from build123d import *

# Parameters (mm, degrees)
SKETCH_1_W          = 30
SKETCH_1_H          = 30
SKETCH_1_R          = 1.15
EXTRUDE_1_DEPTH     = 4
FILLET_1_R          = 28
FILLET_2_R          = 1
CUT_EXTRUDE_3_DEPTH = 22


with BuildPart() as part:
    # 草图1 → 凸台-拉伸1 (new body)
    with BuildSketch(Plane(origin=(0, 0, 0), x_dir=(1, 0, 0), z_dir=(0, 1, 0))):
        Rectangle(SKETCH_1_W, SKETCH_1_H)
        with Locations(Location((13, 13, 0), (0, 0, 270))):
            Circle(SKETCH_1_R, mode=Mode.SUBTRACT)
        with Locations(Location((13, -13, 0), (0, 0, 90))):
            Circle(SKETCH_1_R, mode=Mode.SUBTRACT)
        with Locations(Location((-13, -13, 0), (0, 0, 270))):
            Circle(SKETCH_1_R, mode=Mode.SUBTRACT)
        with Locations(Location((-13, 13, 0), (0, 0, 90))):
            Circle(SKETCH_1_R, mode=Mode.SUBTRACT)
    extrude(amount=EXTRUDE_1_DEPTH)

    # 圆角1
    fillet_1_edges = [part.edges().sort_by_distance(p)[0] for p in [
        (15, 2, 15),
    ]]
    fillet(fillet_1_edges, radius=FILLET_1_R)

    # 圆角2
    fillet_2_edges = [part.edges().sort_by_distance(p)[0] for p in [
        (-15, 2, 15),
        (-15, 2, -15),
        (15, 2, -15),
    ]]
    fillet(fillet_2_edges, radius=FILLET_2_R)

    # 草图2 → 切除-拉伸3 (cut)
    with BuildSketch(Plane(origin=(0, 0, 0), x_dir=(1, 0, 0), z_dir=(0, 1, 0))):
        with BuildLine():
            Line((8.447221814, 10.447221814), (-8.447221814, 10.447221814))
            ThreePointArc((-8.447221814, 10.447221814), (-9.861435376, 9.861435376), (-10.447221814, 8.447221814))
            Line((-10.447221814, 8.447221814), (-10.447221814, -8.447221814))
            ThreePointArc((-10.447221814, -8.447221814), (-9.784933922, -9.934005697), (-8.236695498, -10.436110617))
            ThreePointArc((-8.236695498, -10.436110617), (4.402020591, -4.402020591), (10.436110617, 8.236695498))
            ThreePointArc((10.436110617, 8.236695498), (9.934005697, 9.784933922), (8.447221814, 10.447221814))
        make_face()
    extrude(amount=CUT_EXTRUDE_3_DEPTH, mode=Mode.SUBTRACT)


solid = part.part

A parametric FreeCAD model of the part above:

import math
import FreeCAD as App
import Part
import Sketcher

V = App.Vector


def edges_at(feature, points):
    """Names of the edges that pass closest to the given points."""
    edges = feature.Shape.Edges
    near = lambda p: min(range(len(edges)), key=lambda i: edges[i].distToShape(Part.Vertex(*p))[0])
    return sorted({f"Edge{near(p) + 1}" for p in points})


def add_polygon(sketch, points):
    """Adds a closed chain of lines whose ends are joined by coincident constraints."""
    first, n = sketch.GeometryCount, len(points)
    for a, b in zip(points, points[1:] + points[:1]):
        sketch.addGeometry(Part.LineSegment(App.Vector(*a, 0), App.Vector(*b, 0)), False)
    for i in range(n):
        sketch.addConstraint(Sketcher.Constraint("Coincident", first + i, 2, first + (i + 1) % n, 1))

doc = App.newDocument("Part")
body = doc.addObject("PartDesign::Body", "Body")

sketch1 = doc.addObject("Sketcher::SketchObject", "Sketch")
body.addObject(sketch1)
sketch1.AttachmentSupport = (doc.XZ_Plane, [""])
sketch1.MapMode = "FlatFace"
add_polygon(sketch1, [(-15, -15), (-15, 15), (15, 15), (15, -15)])
sketch1.addGeometry(Part.Circle(V(-13, 13, 0), V(0, 0, 1), 1.1), False)
sketch1.addGeometry(Part.Circle(V(13, 13, 0), V(0, 0, 1), 1.1), False)
sketch1.addGeometry(Part.Circle(V(-13, -13, 0), V(0, 0, 1), 1.1), False)
sketch1.addGeometry(Part.Circle(V(13, -13, 0), V(0, 0, 1), 1.1), False)
sketch1.addConstraint([
    Sketcher.Constraint("Vertical", 0),
    Sketcher.Constraint("Horizontal", 1),
    Sketcher.Constraint("Vertical", 2),
    Sketcher.Constraint("Horizontal", 3),
    Sketcher.Constraint("Equal", 4, 5),
    Sketcher.Constraint("Equal", 5, 6),
    Sketcher.Constraint("Equal", 6, 7),
    Sketcher.Constraint("Symmetric", 5, 3, 6, 3, -1, 1),
    Sketcher.Constraint("Symmetric", 4, 3, 7, 3, -1, 1),
    Sketcher.Constraint("Symmetric", 0, 2, 2, 2, -1, 1),
    Sketcher.Constraint("Symmetric", 4, 3, 5, 3, -2),
    Sketcher.Constraint("Equal", 3, 0),
    Sketcher.Constraint("Diameter", 4, 2.3),
    Sketcher.Constraint("DistanceX", 1, 1, 1, 2, 30.0),
    Sketcher.Constraint("DistanceX", 4, 3, -1, 1, 13.0),
    Sketcher.Constraint("DistanceY", -1, 1, 4, 3, 13.0),
])
pad1 = doc.addObject("PartDesign::Pad", "Pad")
body.addObject(pad1)
pad1.Profile = sketch1
pad1.Length = 4
pad1.Reversed = True
doc.recompute()

fillet = doc.addObject("PartDesign::Fillet", "Fillet")
body.addObject(fillet)
fillet.Base = (pad1, edges_at(pad1, [(15, 2, 15)]))
fillet.Radius = 28
doc.recompute()

fillet2 = doc.addObject("PartDesign::Fillet", "Fillet001")
body.addObject(fillet2)
fillet2.Base = (fillet, edges_at(fillet, [(-15, 2, 15), (-15, 2, -15), (15, 2, -15)]))
fillet2.Radius = 1

sketch2 = doc.addObject("Sketcher::SketchObject", "Sketch001")
body.addObject(sketch2)
sketch2.AttachmentSupport = (doc.XZ_Plane, [""])
sketch2.MapMode = "FlatFace"
sketch2.addGeometry([
    Part.LineSegment(V(8.4, -10.4, 0), V(-8.4, -10.4, 0)),
    Part.ArcOfCircle(Part.Circle(V(-8.4, -8.4, 0), V(0, 0, 1), 2), math.radians(-180), math.radians(-90)),
    Part.LineSegment(V(-10.4, -8.4, 0), V(-10.4, 8.4, 0)),
    Part.ArcOfCircle(Part.Circle(V(-8.4, 8.4, 0), V(0, 0, 1), 2), math.radians(84), math.radians(180)),
    Part.ArcOfCircle(Part.Circle(V(-10.4, -10.4, 0), V(0, 0, 1), 21), math.radians(6), math.radians(84)),
    Part.ArcOfCircle(Part.Circle(V(8.4, -8.4, 0), V(0, 0, 1), 2), math.radians(-90), math.radians(6)),
], False)
sketch2.addConstraint([
    Sketcher.Constraint("Tangent", 0, 2, 1, 2),
    Sketcher.Constraint("Tangent", 1, 1, 2, 1),
    Sketcher.Constraint("Tangent", 2, 2, 3, 2),
    Sketcher.Constraint("Tangent", 3, 1, 4, 2),
    Sketcher.Constraint("Tangent", 4, 1, 5, 2),
    Sketcher.Constraint("Tangent", 5, 1, 0, 1),
    Sketcher.Constraint("Horizontal", 0),
    Sketcher.Constraint("Vertical", 2),
    Sketcher.Constraint("Equal", 1, 3),
    Sketcher.Constraint("Equal", 3, 5),
    Sketcher.Constraint("Symmetric", 3, 3, 5, 3, -1, 1),
    Sketcher.Constraint("Horizontal", 4, 3, 0, 2),
    Sketcher.Constraint("Vertical", 4, 3, 1, 1),
    Sketcher.Constraint("Radius", 1, 2.0),
    Sketcher.Constraint("Radius", 4, 21.0),
])
pocket1 = doc.addObject("PartDesign::Pocket", "Pocket")
body.addObject(pocket1)
pocket1.Profile = sketch2
pocket1.Length = 22

doc.recompute()
